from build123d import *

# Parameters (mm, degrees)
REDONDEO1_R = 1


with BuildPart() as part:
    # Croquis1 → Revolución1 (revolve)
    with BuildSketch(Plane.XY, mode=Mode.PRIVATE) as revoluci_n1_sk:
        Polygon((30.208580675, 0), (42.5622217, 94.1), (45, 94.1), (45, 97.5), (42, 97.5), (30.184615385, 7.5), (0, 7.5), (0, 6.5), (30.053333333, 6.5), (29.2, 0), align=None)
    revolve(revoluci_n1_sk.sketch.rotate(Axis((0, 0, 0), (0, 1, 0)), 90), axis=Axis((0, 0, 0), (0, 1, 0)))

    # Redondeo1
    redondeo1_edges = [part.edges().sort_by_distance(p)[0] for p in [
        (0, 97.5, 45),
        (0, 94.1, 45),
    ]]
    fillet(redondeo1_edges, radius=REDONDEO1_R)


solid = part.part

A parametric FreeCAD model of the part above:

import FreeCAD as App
import Part
import Sketcher

V = App.Vector


def edges_at(feature, points):
    """Names of the edges that pass closest to the given points."""
    edges = feature.Shape.Edges
    near = lambda p: min(range(len(edges)), key=lambda i: edges[i].distToShape(Part.Vertex(*p))[0])
    return sorted({f"Edge{near(p) + 1}" for p in points})


def add_polygon(sketch, points):
    """Adds a closed chain of lines whose ends are joined by coincident constraints."""
    first, n = sketch.GeometryCount, len(points)
    for a, b in zip(points, points[1:] + points[:1]):
        sketch.addGeometry(Part.LineSegment(App.Vector(*a, 0), App.Vector(*b, 0)), False)
    for i in range(n):
        sketch.addConstraint(Sketcher.Constraint("Coincident", first + i, 2, first + (i + 1) % n, 1))

doc = App.newDocument("Part")
body = doc.addObject("PartDesign::Body", "Body")

sketch1 = body.newObject("Sketcher::SketchObject", "Sketch")
sketch1.AttachmentSupport = (doc.getObject("XY_Plane"), [""])
sketch1.MapMode = "FlatFace"
add_polygon(sketch1, [(30.208581, 0), (42.562222, 94.1), (45, 94.1), (45, 97.5), (42, 97.5), (30.184615, 7.5), (0, 7.5), (0, 6.5), (30.053333, 6.5), (29.2, 0)])
sketch1.addConstraint([
    Sketcher.Constraint("Horizontal", 1),
    Sketcher.Constraint("Vertical", 2),
    Sketcher.Constraint("Horizontal", 3),
    Sketcher.Constraint("Horizontal", 5),
    Sketcher.Constraint("Vertical", 6),
    Sketcher.Constraint("Horizontal", 7),
    Sketcher.Constraint("Horizontal", 9),
    Sketcher.Constraint("PointOnObject", 5, 2, -2),
    Sketcher.Constraint("PointOnObject", 8, 2, -1),
    Sketcher.Constraint("Parallel", 0, 4),
    Sketcher.Constraint("Parallel", 4, 8),
    Sketcher.Constraint("DistanceX", 3, 2, 3, 1, 3.0),
    Sketcher.Constraint("DistanceY", 6, 2, 6, 1, 1.0),
    Sketcher.Constraint("DistanceY", 2, 1, 2, 2, 3.4),
    Sketcher.Constraint("DistanceX", -1, 1, 1, 2, 45.0),
    Sketcher.Constraint("DistanceY", 4, 2, 3, 2, 90.0),
    Sketcher.Constraint("DistanceY", -1, 1, 0, 2, 94.1),
    Sketcher.Constraint("DistanceX", -1, 1, 8, 2, 29.2),
    Sketcher.Constraint("DistanceX", 1, 1, 1, 2, 2.437778),
    Sketcher.Constraint("DistanceX", 9, 1, 9, 2, 1.008581),
])
revolution = body.newObject("PartDesign::Revolution", "Revolution")
revolution.Profile = sketch1
revolution.ReferenceAxis = (sketch1, ["V_Axis"])
revolution.Angle = 360
doc.recompute()

fillet = body.newObject("PartDesign::Fillet", "Fillet")
fillet.Base = (revolution, edges_at(revolution, [(0, 97.5, 45), (0, 94.1, 45)]))
fillet.Radius = 1

doc.recompute()
